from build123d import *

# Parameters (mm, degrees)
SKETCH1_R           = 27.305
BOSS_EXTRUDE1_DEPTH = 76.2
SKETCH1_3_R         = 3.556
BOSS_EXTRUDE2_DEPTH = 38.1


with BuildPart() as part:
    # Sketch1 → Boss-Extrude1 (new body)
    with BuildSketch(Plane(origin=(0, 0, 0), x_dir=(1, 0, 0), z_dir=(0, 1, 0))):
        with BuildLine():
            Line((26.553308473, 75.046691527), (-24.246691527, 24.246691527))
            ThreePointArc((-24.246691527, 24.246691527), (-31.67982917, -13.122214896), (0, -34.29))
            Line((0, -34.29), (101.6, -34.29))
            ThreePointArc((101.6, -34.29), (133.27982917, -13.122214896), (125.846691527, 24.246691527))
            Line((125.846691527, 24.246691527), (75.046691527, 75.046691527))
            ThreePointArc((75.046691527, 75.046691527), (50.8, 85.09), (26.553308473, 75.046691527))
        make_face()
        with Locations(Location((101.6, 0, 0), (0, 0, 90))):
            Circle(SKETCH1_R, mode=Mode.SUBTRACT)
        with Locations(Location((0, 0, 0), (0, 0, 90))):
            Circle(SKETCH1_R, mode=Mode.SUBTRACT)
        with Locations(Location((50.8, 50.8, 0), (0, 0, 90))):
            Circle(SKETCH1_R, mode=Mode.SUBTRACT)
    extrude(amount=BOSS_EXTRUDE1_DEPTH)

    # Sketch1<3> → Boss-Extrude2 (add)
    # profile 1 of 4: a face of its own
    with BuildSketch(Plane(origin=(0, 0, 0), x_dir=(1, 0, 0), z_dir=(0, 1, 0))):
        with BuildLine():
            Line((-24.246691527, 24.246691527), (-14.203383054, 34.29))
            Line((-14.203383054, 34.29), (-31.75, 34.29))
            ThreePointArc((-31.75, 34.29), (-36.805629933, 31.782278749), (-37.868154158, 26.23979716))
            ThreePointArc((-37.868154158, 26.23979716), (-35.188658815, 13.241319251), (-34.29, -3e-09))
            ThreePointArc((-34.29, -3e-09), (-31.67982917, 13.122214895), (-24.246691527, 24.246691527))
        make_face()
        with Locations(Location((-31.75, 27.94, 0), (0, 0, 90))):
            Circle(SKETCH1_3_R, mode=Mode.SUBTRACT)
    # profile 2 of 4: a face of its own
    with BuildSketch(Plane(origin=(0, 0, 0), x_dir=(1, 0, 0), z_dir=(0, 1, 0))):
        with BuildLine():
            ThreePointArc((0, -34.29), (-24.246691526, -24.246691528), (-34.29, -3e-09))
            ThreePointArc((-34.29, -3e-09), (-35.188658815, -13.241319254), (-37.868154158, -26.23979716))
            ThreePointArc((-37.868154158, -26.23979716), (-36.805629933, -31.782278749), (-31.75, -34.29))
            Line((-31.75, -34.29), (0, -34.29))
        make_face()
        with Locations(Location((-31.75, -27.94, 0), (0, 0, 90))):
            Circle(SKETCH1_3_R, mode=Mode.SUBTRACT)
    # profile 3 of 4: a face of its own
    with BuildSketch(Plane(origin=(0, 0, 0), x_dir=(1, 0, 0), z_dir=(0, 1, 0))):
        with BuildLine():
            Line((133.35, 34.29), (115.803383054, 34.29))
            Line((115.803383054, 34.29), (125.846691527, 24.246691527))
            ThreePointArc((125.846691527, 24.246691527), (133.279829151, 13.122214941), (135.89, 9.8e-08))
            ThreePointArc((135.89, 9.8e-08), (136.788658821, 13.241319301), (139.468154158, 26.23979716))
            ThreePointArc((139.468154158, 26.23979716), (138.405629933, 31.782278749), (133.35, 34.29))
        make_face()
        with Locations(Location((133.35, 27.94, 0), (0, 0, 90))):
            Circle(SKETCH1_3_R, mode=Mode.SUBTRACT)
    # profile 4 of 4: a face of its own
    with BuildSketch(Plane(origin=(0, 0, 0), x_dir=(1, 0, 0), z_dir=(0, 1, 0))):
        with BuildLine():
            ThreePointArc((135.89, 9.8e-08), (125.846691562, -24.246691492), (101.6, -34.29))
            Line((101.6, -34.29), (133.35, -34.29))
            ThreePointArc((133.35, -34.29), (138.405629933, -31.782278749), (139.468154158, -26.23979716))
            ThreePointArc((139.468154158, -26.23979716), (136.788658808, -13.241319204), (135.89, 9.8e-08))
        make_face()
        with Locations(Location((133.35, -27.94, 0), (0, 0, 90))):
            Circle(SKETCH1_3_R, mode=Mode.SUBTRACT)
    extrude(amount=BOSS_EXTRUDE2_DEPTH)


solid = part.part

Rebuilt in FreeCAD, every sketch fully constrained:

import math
import FreeCAD as App
import Part
import Sketcher
Q = App.Units.Quantity

doc = App.newDocument("Part")
body = doc.addObject("PartDesign::Body", "Body")

sketch1 = body.newObject("Sketcher::SketchObject", "Sketch")
sketch1.AttachmentSupport = (doc.getObject("XZ_Plane"), [""])
sketch1.MapMode = "FlatFace"
sketch1.addGeometry([
    Part.LineSegment(App.Vector(26.553308, -75.046692, 0), App.Vector(-24.246692, -24.246692, 0)),
    Part.ArcOfCircle(Part.Circle(App.Vector(0, 0, 0), App.Vector(0, 0, 1), 34.29), math.radians(90), math.radians(225)),
    Part.LineSegment(App.Vector(0, 34.29, 0), App.Vector(101.6, 34.29, 0)),
    Part.ArcOfCircle(Part.Circle(App.Vector(101.6, 0, 0), App.Vector(0, 0, 1), 34.29), math.radians(-45), math.radians(90)),
    Part.LineSegment(App.Vector(125.846692, -24.246692, 0), App.Vector(75.046692, -75.046692, 0)),
    Part.ArcOfCircle(Part.Circle(App.Vector(50.8, -50.8, 0), App.Vector(0, 0, 1), 34.29), math.radians(-135), math.radians(-45)),
    Part.Circle(App.Vector(0, 0, 0), App.Vector(0, 0, 1), 27.305),
    Part.Circle(App.Vector(101.6, 0, 0), App.Vector(0, 0, 1), 27.305),
    Part.Circle(App.Vector(50.8, -50.8, 0), App.Vector(0, 0, 1), 27.305),
], False)
sketch1.addConstraint([
    Sketcher.Constraint("Tangent", 0, 2, 1, 2),
    Sketcher.Constraint("Tangent", 1, 1, 2, 1),
    Sketcher.Constraint("Tangent", 2, 2, 3, 2),
    Sketcher.Constraint("Tangent", 3, 1, 4, 1),
    Sketcher.Constraint("Tangent", 4, 2, 5, 2),
    Sketcher.Constraint("Tangent", 5, 1, 0, 1),
    Sketcher.Constraint("Horizontal", 2),
    Sketcher.Constraint("Coincident", 1, 3, -1, 1),
    Sketcher.Constraint("Coincident", 6, 3, -1, 1),
    Sketcher.Constraint("Coincident", 7, 3, 3, 3),
    Sketcher.Constraint("Coincident", 8, 3, 5, 3),
    Sketcher.Constraint("Equal", 1, 3),
    Sketcher.Constraint("Equal", 3, 5),
    Sketcher.Constraint("Equal", 6, 7),
    Sketcher.Constraint("Equal", 7, 8),
    Sketcher.Constraint("Perpendicular", 0, 4),
    Sketcher.Constraint("Horizontal", 0, 2, 3, 1),
    Sketcher.Constraint("Diameter", 6, Q("2.15 in")),
    Sketcher.Constraint("DistanceX", 2, 1, 2, 2, Q("4 in")),
    Sketcher.Constraint("Radius", 1, Q("1.35 in")),
])
pad1 = body.newObject("PartDesign::Pad", "Pad")
pad1.Profile = sketch1
pad1.Length = Q("3 in")
pad1.Reversed = True

sketch2 = body.newObject("Sketcher::SketchObject", "Sketch001")
sketch2.AttachmentSupport = (doc.getObject("XZ_Plane"), [""])
sketch2.MapMode = "FlatFace"
sketch2.addGeometry([
    Part.LineSegment(App.Vector(-24.246692, -24.246692, 0), App.Vector(-14.203383, -34.29, 0)),
    Part.LineSegment(App.Vector(-14.203383, -34.29, 0), App.Vector(-31.75, -34.29, 0)),
    Part.ArcOfCircle(Part.Circle(App.Vector(-31.75, -27.94, 0), App.Vector(0, 0, 1), 6.35), math.radians(164.469668), math.radians(270)),
    Part.ArcOfCircle(Part.Circle(App.Vector(-132.291667, 0, 0), App.Vector(0, 0, 1), 98.001667), math.radians(-15.530332), math.radians(0)),
    Part.ArcOfCircle(Part.Circle(App.Vector(0, 0, 0), App.Vector(0, 0, 1), 34.29), math.radians(180), math.radians(225)),
    Part.Circle(App.Vector(-31.75, -27.94, 0), App.Vector(0, 0, 1), 3.556),
    Part.ArcOfCircle(Part.Circle(App.Vector(0, 0, 0), App.Vector(0, 0, 1), 34.29), math.radians(90), math.radians(180)),
    Part.ArcOfCircle(Part.Circle(App.Vector(-132.291667, 0, 0), App.Vector(0, 0, 1), 98.001667), math.radians(0), math.radians(15.530332)),
    Part.ArcOfCircle(Part.Circle(App.Vector(-31.75, 27.94, 0), App.Vector(0, 0, 1), 6.35), math.radians(90), math.radians(195.530332)),
    Part.LineSegment(App.Vector(-31.75, 34.29, 0), App.Vector(0, 34.29, 0)),
    Part.Circle(App.Vector(-31.75, 27.94, 0), App.Vector(0, 0, 1), 3.556),
    Part.LineSegment(App.Vector(133.35, -34.29, 0), App.Vector(115.803383, -34.29, 0)),
    Part.LineSegment(App.Vector(115.803383, -34.29, 0), App.Vector(125.846692, -24.246692, 0)),
    Part.ArcOfCircle(Part.Circle(App.Vector(101.6, 0, 0), App.Vector(0, 0, 1), 34.29), math.radians(-45), math.radians(0)),
    Part.ArcOfCircle(Part.Circle(App.Vector(233.891667, 0, 0), App.Vector(0, 0, 1), 98.001667), math.radians(-180), math.radians(-164.469668)),
    Part.ArcOfCircle(Part.Circle(App.Vector(133.35, -27.94, 0), App.Vector(0, 0, 1), 6.35), math.radians(-90), math.radians(15.530332)),
    Part.Circle(App.Vector(133.35, -27.94, 0), App.Vector(0, 0, 1), 3.556),
    Part.ArcOfCircle(Part.Circle(App.Vector(101.6, 0, 0), App.Vector(0, 0, 1), 34.29), math.radians(0), math.radians(90)),
    Part.LineSegment(App.Vector(101.6, 34.29, 0), App.Vector(133.35, 34.29, 0)),
    Part.ArcOfCircle(Part.Circle(App.Vector(133.35, 27.94, 0), App.Vector(0, 0, 1), 6.35), math.radians(-15.530332), math.radians(90)),
    Part.ArcOfCircle(Part.Circle(App.Vector(233.891667, 0, 0), App.Vector(0, 0, 1), 98.001667), math.radians(164.469668), math.radians(180)),
    Part.Circle(App.Vector(133.35, 27.94, 0), App.Vector(0, 0, 1), 3.556),
], False)
sketch2.addConstraint([
    Sketcher.Constraint("Coincident", 0, 2, 1, 1),
    Sketcher.Constraint("Tangent", 1, 2, 2, 2),
    Sketcher.Constraint("Tangent", 2, 1, 3, 1),
    Sketcher.Constraint("Tangent", 3, 2, 4, 1),
    Sketcher.Constraint("Tangent", 4, 2, 0, 1),
    Sketcher.Constraint("Tangent", 6, 2, 7, 1),
    Sketcher.Constraint("Tangent", 7, 2, 8, 2),
    Sketcher.Constraint("Tangent", 8, 1, 9, 1),
    Sketcher.Constraint("Tangent", 9, 2, 6, 1),
    Sketcher.Constraint("Coincident", 11, 2, 12, 1),
    Sketcher.Constraint("Tangent", 12, 2, 13, 1),
    Sketcher.Constraint("Tangent", 13, 2, 14, 1),
    Sketcher.Constraint("Tangent", 14, 2, 15, 2),
    Sketcher.Constraint("Tangent", 15, 1, 11, 1),
    Sketcher.Constraint("Tangent", 17, 2, 18, 1),
    Sketcher.Constraint("Tangent", 18, 2, 19, 2),
    Sketcher.Constraint("Tangent", 19, 1, 20, 1),
    Sketcher.Constraint("Tangent", 20, 2, 17, 1),
    Sketcher.Constraint("Horizontal", 1),
    Sketcher.Constraint("Horizontal", 9),
    Sketcher.Constraint("Horizontal", 11),
    Sketcher.Constraint("Horizontal", 18),
    Sketcher.Constraint("Coincident", 4, 3, -1, 1),
    Sketcher.Constraint("Coincident", 6, 3, -1, 1),
    Sketcher.Constraint("Coincident", 5, 3, 2, 3),
    Sketcher.Constraint("Coincident", 7, 3, 3, 3),
    Sketcher.Constraint("Coincident", 10, 3, 8, 3),
    Sketcher.Constraint("Coincident", 16, 3, 15, 3),
    Sketcher.Constraint("Coincident", 17, 3, 13, 3),
    Sketcher.Constraint("Coincident", 20, 3, 14, 3),
    Sketcher.Constraint("Coincident", 21, 3, 19, 3),
    Sketcher.Constraint("Equal", 4, 6),
    Sketcher.Constraint("Equal", 2, 8),
    Sketcher.Constraint("Equal", 5, 10),
    Sketcher.Constraint("Equal", 6, 13),
    Sketcher.Constraint("Equal", 7, 14),
    Sketcher.Constraint("Equal", 8, 15),
    Sketcher.Constraint("Equal", 10, 16),
    Sketcher.Constraint("Equal", 13, 17),
    Sketcher.Constraint("Equal", 15, 19),
    Sketcher.Constraint("Equal", 16, 21),
    Sketcher.Constraint("Symmetric", 2, 3, 8, 3, -1),
    Sketcher.Constraint("Symmetric", 15, 3, 19, 3, -1),
    Sketcher.Constraint("PointOnObject", 13, 3, -1),
    Sketcher.Constraint("Perpendicular", 0, 12),
    Sketcher.Constraint("Horizontal", 4, 2, 12, 2),
    Sketcher.Constraint("Diameter", 5, Q("0.28 in")),
    Sketcher.Constraint("Radius", 2, Q("0.25 in")),
    Sketcher.Constraint("Radius", 4, Q("1.35 in")),
    Sketcher.Constraint("DistanceX", -1, 1, 13, 3, Q("4 in")),
    Sketcher.Constraint("DistanceX", 9, 1, 9, 2, Q("1.25 in")),
])
pad2 = body.newObject("PartDesign::Pad", "Pad001")
pad2.Profile = sketch2
pad2.Length = Q("1.5 in")
pad2.Reversed = True

doc.recompute()
